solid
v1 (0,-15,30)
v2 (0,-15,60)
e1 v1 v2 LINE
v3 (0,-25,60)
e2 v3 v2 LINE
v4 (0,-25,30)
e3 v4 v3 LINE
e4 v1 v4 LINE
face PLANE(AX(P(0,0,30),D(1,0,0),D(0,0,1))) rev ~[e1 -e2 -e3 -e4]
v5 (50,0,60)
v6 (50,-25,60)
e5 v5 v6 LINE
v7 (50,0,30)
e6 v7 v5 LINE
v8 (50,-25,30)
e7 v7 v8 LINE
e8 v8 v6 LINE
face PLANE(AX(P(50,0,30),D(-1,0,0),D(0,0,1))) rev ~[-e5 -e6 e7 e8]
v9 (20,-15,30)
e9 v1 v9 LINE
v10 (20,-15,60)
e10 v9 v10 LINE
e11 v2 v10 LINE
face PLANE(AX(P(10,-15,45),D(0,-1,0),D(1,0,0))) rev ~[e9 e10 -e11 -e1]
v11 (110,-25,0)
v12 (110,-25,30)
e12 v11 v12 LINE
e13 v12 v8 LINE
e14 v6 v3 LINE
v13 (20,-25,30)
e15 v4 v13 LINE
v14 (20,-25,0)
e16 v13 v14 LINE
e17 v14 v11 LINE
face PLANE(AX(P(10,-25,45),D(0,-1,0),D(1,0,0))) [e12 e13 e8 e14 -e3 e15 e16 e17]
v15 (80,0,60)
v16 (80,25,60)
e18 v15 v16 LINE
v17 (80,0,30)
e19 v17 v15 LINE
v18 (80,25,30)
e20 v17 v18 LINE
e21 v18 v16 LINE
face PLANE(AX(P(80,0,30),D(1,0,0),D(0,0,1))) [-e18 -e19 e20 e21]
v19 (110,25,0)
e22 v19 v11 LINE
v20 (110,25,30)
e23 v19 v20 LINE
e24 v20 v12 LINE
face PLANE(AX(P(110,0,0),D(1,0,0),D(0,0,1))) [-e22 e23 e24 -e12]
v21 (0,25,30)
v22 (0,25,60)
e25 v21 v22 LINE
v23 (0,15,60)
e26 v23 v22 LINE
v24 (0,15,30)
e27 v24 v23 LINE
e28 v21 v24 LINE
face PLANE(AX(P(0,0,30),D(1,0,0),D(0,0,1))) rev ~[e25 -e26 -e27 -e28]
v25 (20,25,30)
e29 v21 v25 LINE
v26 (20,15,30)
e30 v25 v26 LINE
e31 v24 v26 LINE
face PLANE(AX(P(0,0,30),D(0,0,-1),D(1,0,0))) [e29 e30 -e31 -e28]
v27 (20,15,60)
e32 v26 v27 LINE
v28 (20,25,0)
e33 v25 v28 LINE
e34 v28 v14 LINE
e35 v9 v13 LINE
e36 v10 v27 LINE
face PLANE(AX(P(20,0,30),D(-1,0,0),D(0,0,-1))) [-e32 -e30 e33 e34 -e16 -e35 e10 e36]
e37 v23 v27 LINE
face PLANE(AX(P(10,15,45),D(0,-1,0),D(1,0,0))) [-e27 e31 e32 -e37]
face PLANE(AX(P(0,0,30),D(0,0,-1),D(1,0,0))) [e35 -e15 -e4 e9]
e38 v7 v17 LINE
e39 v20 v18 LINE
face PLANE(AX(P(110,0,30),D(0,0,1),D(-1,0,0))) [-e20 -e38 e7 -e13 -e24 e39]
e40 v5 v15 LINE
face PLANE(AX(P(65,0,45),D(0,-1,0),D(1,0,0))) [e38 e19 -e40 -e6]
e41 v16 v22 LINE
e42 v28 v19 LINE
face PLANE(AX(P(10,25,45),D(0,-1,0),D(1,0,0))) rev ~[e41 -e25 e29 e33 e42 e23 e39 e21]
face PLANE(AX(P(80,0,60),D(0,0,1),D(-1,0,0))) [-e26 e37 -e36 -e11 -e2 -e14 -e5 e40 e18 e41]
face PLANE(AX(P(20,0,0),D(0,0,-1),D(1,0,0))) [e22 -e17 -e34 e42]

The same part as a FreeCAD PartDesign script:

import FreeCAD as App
import Part
import Sketcher
from FreeCAD import Vector
Q = App.Units.Quantity


def add_polygon(sketch, points):
    """Adds a closed chain of lines whose ends are joined by coincident constraints."""
    first, n = sketch.GeometryCount, len(points)
    for a, b in zip(points, points[1:] + points[:1]):
        sketch.addGeometry(Part.LineSegment(App.Vector(*a, 0), App.Vector(*b, 0)), False)
    for i in range(n):
        sketch.addConstraint(Sketcher.Constraint("Coincident", first + i, 2, first + (i + 1) % n, 1))

doc = App.newDocument("Part")
params = doc.addObject("Spreadsheet::Sheet", "Params")
for row, (alias, value) in enumerate([
    ("sketch1_width", "20 mm"),
    ("sketch1_width2", "90 mm"),
    ("sketch1_width3", "30 mm"),
    ("pad1_length", "50 mm"),
    ("sketch2_width", "20 mm"),
    ("sketch2_height", "30 mm"),
    ("pocket1_length", "30 mm"),
    ("sketch3_width", "30 mm"),
], start=1):
    params.set(f"A{row}", alias)
    params.set(f"B{row}", "=" + value)
    params.setAlias(f"B{row}", alias)

body = doc.addObject("PartDesign::Body", "Body")

# Sketch on XZ plane
sketch1 = body.newObject("Sketcher::SketchObject", "Sketch")
sketch1.AttachmentSupport = (doc.getObject("XZ_Plane"), [""])
sketch1.MapMode = "FlatFace"
add_polygon(sketch1, [(0, 60), (0, 30), (20, 30), (20, 0), (110, 0), (110, 30), (80, 30), (80, 60)])  # lines 0-7
sketch1.addConstraint([
    Sketcher.Constraint("Vertical", 0),
    Sketcher.Constraint("Horizontal", 1),
    Sketcher.Constraint("Vertical", 2),
    Sketcher.Constraint("Horizontal", 3),
    Sketcher.Constraint("Vertical", 4),
    Sketcher.Constraint("Horizontal", 5),
    Sketcher.Constraint("Vertical", 6),
    Sketcher.Constraint("Horizontal", 7),
    Sketcher.Constraint("PointOnObject", 0, 2, -2),
    Sketcher.Constraint("PointOnObject", 2, 2, -1),
    Sketcher.Constraint("Horizontal", 1, 2, 4, 2),
    Sketcher.Constraint("Equal", 5, 0),
    Sketcher.Constraint("Equal", 0, 2),
    Sketcher.Constraint("DistanceX", 1, 1, 1, 2, Q("20 mm")),
    Sketcher.Constraint("DistanceX", 3, 1, 3, 2, Q("90 mm")),
    Sketcher.Constraint("DistanceX", 5, 2, 5, 1, Q("30 mm")),
])
sketch1.setExpression("Constraints[21]", "Params.sketch1_width")
sketch1.setExpression("Constraints[22]", "Params.sketch1_width2")
sketch1.setExpression("Constraints[23]", "Params.sketch1_width3")
pad1 = body.newObject("PartDesign::Pad", "Pad")
pad1.Profile = sketch1
pad1.setExpression("Length", "Params.pad1_length")
pad1.Midplane = True

# Sketch on XZ plane
sketch2 = body.newObject("Sketcher::SketchObject", "Sketch001")
sketch2.AttachmentSupport = (doc.getObject("XZ_Plane"), [""])
sketch2.MapMode = "FlatFace"
add_polygon(sketch2, [(0, 60), (0, 30), (20, 30), (20, 60)])  # lines 0-3
sketch2.addConstraint([
    Sketcher.Constraint("Vertical", 0),
    Sketcher.Constraint("Horizontal", 1),
    Sketcher.Constraint("Vertical", 2),
    Sketcher.Constraint("Horizontal", 3),
    Sketcher.Constraint("PointOnObject", 0, 2, -2),
    Sketcher.Constraint("DistanceX", 1, 1, 1, 2, Q("20 mm")),
    Sketcher.Constraint("DistanceY", 0, 2, 0, 1, Q("30 mm")),
    Sketcher.Constraint("DistanceY", -1, 1, 0, 2, Q("30 mm")),
])
sketch2.setExpression("Constraints[9]", "Params.sketch2_width")
sketch2.setExpression("Constraints[10]", "Params.sketch2_height")
pocket1 = body.newObject("PartDesign::Pocket", "Pocket")
pocket1.Profile = sketch2
pocket1.setExpression("Length", "Params.pocket1_length")
pocket1.Midplane = True

# Sketch on XZ plane
sketch3 = body.newObject("Sketcher::SketchObject", "Sketch002")
sketch3.AttachmentSupport = (doc.getObject("XZ_Plane"), [""])
sketch3.MapMode = "FlatFace"
add_polygon(sketch3, [(50, 60), (50, 30), (80, 30), (80, 60)])  # lines 0-3
sketch3.addConstraint([
    Sketcher.Constraint("Vertical", 0),
    Sketcher.Constraint("Horizontal", 1),
    Sketcher.Constraint("Vertical", 2),
    Sketcher.Constraint("Horizontal", 3),
    Sketcher.Constraint("Equal", 3, 0),
    Sketcher.Constraint("DistanceX", 1, 1, 1, 2, Q("30 mm")),
    Sketcher.Constraint("DistanceX", -1, 1, 0, 2, Q("50 mm")),
    Sketcher.Constraint("DistanceY", -1, 1, 0, 2, Q("30 mm")),
])
sketch3.setExpression("Constraints[9]", "Params.sketch3_width")
pocket2 = body.newObject("PartDesign::Pocket", "Pocket001")
pocket2.Profile = sketch3
pocket2.Type = "ThroughAll"
pocket2.Reversed = True

doc.recompute()
